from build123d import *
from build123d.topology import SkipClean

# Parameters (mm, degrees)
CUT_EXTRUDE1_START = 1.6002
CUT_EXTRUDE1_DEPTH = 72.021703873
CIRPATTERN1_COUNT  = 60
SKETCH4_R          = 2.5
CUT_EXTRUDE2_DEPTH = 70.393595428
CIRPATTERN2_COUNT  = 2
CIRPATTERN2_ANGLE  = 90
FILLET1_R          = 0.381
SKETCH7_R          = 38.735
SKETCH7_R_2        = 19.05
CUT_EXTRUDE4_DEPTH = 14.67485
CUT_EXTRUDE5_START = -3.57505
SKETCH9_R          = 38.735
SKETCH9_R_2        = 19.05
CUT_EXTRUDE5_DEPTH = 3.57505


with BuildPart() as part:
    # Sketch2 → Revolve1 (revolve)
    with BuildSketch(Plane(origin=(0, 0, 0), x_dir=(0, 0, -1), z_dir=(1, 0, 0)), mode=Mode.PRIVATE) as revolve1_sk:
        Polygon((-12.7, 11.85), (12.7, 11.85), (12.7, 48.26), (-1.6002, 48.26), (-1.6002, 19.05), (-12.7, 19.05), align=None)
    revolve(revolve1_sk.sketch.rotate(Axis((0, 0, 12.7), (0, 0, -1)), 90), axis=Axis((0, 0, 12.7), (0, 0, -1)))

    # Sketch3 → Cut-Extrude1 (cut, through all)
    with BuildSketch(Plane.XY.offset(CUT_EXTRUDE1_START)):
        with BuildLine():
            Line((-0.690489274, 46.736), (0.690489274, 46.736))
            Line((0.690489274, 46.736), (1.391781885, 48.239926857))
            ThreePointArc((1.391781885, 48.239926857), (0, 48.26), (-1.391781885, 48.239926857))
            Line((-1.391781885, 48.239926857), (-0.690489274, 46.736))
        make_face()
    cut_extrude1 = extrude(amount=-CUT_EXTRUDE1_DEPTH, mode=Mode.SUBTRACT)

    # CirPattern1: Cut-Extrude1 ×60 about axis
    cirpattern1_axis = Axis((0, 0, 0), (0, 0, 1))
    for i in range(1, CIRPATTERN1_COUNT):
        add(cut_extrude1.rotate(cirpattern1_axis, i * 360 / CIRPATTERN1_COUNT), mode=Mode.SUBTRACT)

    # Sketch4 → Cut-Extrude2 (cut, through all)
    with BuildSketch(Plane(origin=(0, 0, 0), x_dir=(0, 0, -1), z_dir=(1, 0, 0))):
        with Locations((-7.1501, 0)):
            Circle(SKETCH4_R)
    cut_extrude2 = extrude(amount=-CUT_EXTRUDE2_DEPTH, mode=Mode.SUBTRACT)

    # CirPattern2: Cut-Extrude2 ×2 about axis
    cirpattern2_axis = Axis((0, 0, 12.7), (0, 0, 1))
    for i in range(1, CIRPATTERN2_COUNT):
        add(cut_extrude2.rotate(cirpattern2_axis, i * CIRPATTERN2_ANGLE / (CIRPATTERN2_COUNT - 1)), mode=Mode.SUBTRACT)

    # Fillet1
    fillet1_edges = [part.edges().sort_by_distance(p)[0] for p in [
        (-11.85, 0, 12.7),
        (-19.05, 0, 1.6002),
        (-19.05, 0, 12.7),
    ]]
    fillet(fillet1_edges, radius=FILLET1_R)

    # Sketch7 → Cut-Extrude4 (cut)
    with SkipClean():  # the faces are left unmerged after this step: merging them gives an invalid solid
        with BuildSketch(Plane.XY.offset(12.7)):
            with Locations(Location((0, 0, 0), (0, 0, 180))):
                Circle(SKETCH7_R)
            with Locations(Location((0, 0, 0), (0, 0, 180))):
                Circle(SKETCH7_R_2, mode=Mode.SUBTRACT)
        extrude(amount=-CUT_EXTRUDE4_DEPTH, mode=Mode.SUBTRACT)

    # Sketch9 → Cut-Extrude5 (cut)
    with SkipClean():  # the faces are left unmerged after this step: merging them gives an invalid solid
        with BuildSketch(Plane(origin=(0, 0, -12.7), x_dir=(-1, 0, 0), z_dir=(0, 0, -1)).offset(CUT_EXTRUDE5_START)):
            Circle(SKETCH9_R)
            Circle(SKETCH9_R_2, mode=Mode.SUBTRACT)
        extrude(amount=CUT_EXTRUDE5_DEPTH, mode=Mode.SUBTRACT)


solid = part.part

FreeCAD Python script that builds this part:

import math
import FreeCAD as App
import Part
import Sketcher
from FreeCAD import Vector
Q = App.Units.Quantity


def edges_at(feature, points):
    """Names of the edges that pass closest to the given points."""
    edges = feature.Shape.Edges
    near = lambda p: min(range(len(edges)), key=lambda i: edges[i].distToShape(Part.Vertex(*p))[0])
    return sorted({f"Edge{near(p) + 1}" for p in points})

doc = App.newDocument("Part")
body = doc.addObject("PartDesign::Body", "Body")

sketch1 = body.newObject("Sketcher::SketchObject", "Sketch")
sketch1.AttachmentSupport = (doc.getObject("YZ_Plane"), [""])
sketch1.MapMode = "FlatFace"
sketch1.addGeometry(Part.LineSegment(Vector(12, 13, 0), Vector(12, -13, 0)), False)
sketch1.addGeometry(Part.LineSegment(Vector(12, -13, 0), Vector(48, -13, 0)), False)
sketch1.addGeometry(Part.LineSegment(Vector(48, -13, 0), Vector(48, 2, 0)), False)
sketch1.addGeometry(Part.LineSegment(Vector(48, 2, 0), Vector(19, 2, 0)), False)
sketch1.addGeometry(Part.LineSegment(Vector(19, 2, 0), Vector(19, 13, 0)), False)
sketch1.addGeometry(Part.LineSegment(Vector(19, 13, 0), Vector(12, 13, 0)), False)
sketch1.addConstraint(Sketcher.Constraint("Coincident", 0, 2, 1, 1))
sketch1.addConstraint(Sketcher.Constraint("Coincident", 1, 2, 2, 1))
sketch1.addConstraint(Sketcher.Constraint("Coincident", 2, 2, 3, 1))
sketch1.addConstraint(Sketcher.Constraint("Coincident", 3, 2, 4, 1))
sketch1.addConstraint(Sketcher.Constraint("Coincident", 4, 2, 5, 1))
sketch1.addConstraint(Sketcher.Constraint("Coincident", 5, 2, 0, 1))
sketch1.addConstraint(Sketcher.Constraint("Vertical", 0))
sketch1.addConstraint(Sketcher.Constraint("Horizontal", 1))
sketch1.addConstraint(Sketcher.Constraint("Vertical", 2))
sketch1.addConstraint(Sketcher.Constraint("Horizontal", 3))
sketch1.addConstraint(Sketcher.Constraint("Vertical", 4))
sketch1.addConstraint(Sketcher.Constraint("Horizontal", 5))
sketch1.addConstraint(Sketcher.Constraint("DistanceY", 0, 2, 0, 1, Q("1 in")))
sketch1.addConstraint(Sketcher.Constraint("DistanceX", 3, 2, 3, 1, Q("1.15 in")))
sketch1.addConstraint(Sketcher.Constraint("DistanceY", 0, 2, -1, 1, Q("0.5 in")))
sketch1.addConstraint(Sketcher.Constraint("DistanceX", -1, 1, 1, 2, Q("1.9 in")))
sketch1.addConstraint(Sketcher.Constraint("DistanceY", 2, 1, 2, 2, Q("0.563 in")))
sketch1.addConstraint(Sketcher.Constraint("DistanceX", 1, 1, 1, 2, Q("36.41 mm")))
revolution = body.newObject("PartDesign::Revolution", "Revolution")
revolution.Profile = sketch1
revolution.ReferenceAxis = (sketch1, ["V_Axis"])
revolution.Angle = 360

sketch2 = body.newObject("Sketcher::SketchObject", "Sketch001")
sketch2.AttachmentSupport = (doc.getObject("XY_Plane"), [""])
sketch2.MapMode = "FlatFace"
sketch2.AttachmentOffset = App.Placement(Vector(0, 0, 0.063 * 25.4), App.Rotation())
sketch2.addGeometry(Part.LineSegment(Vector(-0.7, 46.7, 0), Vector(0.7, 46.7, 0)), False)
sketch2.addGeometry(Part.LineSegment(Vector(0.7, 46.7, 0), Vector(1.4, 48.2, 0)), False)
sketch2.addGeometry(Part.ArcOfCircle(Part.Circle(Vector(0, 0, 0), Vector(0, 0, 1), 48.3), math.radians(88.35), math.radians(91.65)), False)
sketch2.addGeometry(Part.LineSegment(Vector(-1.4, 48.2, 0), Vector(-0.7, 46.7, 0)), False)
sketch2.addConstraint(Sketcher.Constraint("Coincident", 0, 2, 1, 1))
sketch2.addConstraint(Sketcher.Constraint("Coincident", 1, 2, 2, 1))
sketch2.addConstraint(Sketcher.Constraint("Coincident", 2, 2, 3, 1))
sketch2.addConstraint(Sketcher.Constraint("Coincident", 3, 2, 0, 1))
sketch2.addConstraint(Sketcher.Constraint("Horizontal", 0))
sketch2.addConstraint(Sketcher.Constraint("Coincident", 2, 3, -1, 1))
sketch2.addConstraint(Sketcher.Constraint("Horizontal", 1, 2, 2, 2))
sketch2.addConstraint(Sketcher.Constraint("Equal", 1, 3))
sketch2.addConstraint(Sketcher.Constraint("Radius", 2, Q("1.9 in")))
sketch2.addConstraint(Sketcher.Constraint("Angle", 1, Q("65 deg")))
sketch2.addConstraint(Sketcher.Constraint("DistanceY", -1, 1, 0, 2, Q("1.84 in")))
sketch2.addConstraint(Sketcher.Constraint("Distance", 1, Q("1.6594 mm")))
pocket1 = body.newObject("PartDesign::Pocket", "Pocket")
pocket1.Profile = sketch2
pocket1.Type = "ThroughAll"
doc.recompute()

polarpattern = body.newObject("PartDesign::PolarPattern", "PolarPattern")
polarpattern.Originals = [pocket1]
polarpattern.Axis = (doc.getObject("Z_Axis"), [""])
polarpattern.Angle = 360
polarpattern.Occurrences = 60
body.Tip = polarpattern

sketch3 = body.newObject("Sketcher::SketchObject", "Sketch002")
sketch3.AttachmentSupport = (doc.getObject("YZ_Plane"), [""])
sketch3.MapMode = "FlatFace"
sketch3.addGeometry(Part.Circle(Vector(0, 7.2, 0), Vector(0, 0, 1), 2.5), False)
sketch3.addConstraint(Sketcher.Constraint("PointOnObject", 0, 3, -2))
sketch3.addConstraint(Sketcher.Constraint("Diameter", 0, Q("5 mm")))
sketch3.addConstraint(Sketcher.Constraint("DistanceY", -1, 1, 0, 3, Q("0.2815 in")))
pocket2 = body.newObject("PartDesign::Pocket", "Pocket001")
pocket2.Profile = sketch3
pocket2.Type = "ThroughAll"
doc.recompute()

polarpattern2 = body.newObject("PartDesign::PolarPattern", "PolarPattern001")
polarpattern2.Originals = [pocket2]
polarpattern2.Axis = (doc.getObject("Z_Axis"), [""])
polarpattern2.Angle = 90
polarpattern2.Occurrences = 2
body.Tip = polarpattern2
doc.recompute()

fillet = body.newObject("PartDesign::Fillet", "Fillet")
fillet.Base = (polarpattern2, edges_at(polarpattern2, [(-11.85, 0, 12.7), (-19.05, 0, 1.6), (-19.05, 0, 12.7)]))
fillet.Radius = Q("0.015 in")

sketch4 = body.newObject("Sketcher::SketchObject", "Sketch003")
sketch4.AttachmentSupport = (doc.getObject("XY_Plane"), [""])
sketch4.MapMode = "FlatFace"
sketch4.AttachmentOffset = App.Placement(Vector(0, 0, 0.5 * 25.4), App.Rotation())
sketch4.addGeometry(Part.Circle(Vector(0, 0, 0), Vector(0, 0, 1), 39), False)
sketch4.addGeometry(Part.Circle(Vector(0, 0, 0), Vector(0, 0, 1), 19), False)
sketch4.addConstraint(Sketcher.Constraint("Coincident", 0, 3, -1, 1))
sketch4.addConstraint(Sketcher.Constraint("Coincident", 1, 3, -1, 1))
sketch4.addConstraint(Sketcher.Constraint("Diameter", 1, Q("1.5 in")))
sketch4.addConstraint(Sketcher.Constraint("Diameter", 0, Q("3.05 in")))
pocket3 = body.newObject("PartDesign::Pocket", "Pocket002")
pocket3.Profile = sketch4
pocket3.Length = 14.67485

sketch5 = body.newObject("Sketcher::SketchObject", "Sketch004")
sketch5.AttachmentSupport = (doc.getObject("XY_Plane"), [""])
sketch5.MapMode = "FlatFace"
sketch5.AttachmentOffset = App.Placement(Vector(0, 0, -9.12495), App.Rotation())
sketch5.addGeometry(Part.Circle(Vector(0, 0, 0), Vector(0, 0, 1), 39), False)
sketch5.addGeometry(Part.Circle(Vector(0, 0, 0), Vector(0, 0, 1), 19), False)
sketch5.addConstraint(Sketcher.Constraint("Coincident", 0, 3, -1, 1))
sketch5.addConstraint(Sketcher.Constraint("Coincident", 1, 3, -1, 1))
sketch5.addConstraint(Sketcher.Constraint("Diameter", 1, Q("1.5 in")))
sketch5.addConstraint(Sketcher.Constraint("Diameter", 0, Q("3.05 in")))
pocket4 = body.newObject("PartDesign::Pocket", "Pocket003")
pocket4.Profile = sketch5
pocket4.Length = 3.57505

doc.recompute()
